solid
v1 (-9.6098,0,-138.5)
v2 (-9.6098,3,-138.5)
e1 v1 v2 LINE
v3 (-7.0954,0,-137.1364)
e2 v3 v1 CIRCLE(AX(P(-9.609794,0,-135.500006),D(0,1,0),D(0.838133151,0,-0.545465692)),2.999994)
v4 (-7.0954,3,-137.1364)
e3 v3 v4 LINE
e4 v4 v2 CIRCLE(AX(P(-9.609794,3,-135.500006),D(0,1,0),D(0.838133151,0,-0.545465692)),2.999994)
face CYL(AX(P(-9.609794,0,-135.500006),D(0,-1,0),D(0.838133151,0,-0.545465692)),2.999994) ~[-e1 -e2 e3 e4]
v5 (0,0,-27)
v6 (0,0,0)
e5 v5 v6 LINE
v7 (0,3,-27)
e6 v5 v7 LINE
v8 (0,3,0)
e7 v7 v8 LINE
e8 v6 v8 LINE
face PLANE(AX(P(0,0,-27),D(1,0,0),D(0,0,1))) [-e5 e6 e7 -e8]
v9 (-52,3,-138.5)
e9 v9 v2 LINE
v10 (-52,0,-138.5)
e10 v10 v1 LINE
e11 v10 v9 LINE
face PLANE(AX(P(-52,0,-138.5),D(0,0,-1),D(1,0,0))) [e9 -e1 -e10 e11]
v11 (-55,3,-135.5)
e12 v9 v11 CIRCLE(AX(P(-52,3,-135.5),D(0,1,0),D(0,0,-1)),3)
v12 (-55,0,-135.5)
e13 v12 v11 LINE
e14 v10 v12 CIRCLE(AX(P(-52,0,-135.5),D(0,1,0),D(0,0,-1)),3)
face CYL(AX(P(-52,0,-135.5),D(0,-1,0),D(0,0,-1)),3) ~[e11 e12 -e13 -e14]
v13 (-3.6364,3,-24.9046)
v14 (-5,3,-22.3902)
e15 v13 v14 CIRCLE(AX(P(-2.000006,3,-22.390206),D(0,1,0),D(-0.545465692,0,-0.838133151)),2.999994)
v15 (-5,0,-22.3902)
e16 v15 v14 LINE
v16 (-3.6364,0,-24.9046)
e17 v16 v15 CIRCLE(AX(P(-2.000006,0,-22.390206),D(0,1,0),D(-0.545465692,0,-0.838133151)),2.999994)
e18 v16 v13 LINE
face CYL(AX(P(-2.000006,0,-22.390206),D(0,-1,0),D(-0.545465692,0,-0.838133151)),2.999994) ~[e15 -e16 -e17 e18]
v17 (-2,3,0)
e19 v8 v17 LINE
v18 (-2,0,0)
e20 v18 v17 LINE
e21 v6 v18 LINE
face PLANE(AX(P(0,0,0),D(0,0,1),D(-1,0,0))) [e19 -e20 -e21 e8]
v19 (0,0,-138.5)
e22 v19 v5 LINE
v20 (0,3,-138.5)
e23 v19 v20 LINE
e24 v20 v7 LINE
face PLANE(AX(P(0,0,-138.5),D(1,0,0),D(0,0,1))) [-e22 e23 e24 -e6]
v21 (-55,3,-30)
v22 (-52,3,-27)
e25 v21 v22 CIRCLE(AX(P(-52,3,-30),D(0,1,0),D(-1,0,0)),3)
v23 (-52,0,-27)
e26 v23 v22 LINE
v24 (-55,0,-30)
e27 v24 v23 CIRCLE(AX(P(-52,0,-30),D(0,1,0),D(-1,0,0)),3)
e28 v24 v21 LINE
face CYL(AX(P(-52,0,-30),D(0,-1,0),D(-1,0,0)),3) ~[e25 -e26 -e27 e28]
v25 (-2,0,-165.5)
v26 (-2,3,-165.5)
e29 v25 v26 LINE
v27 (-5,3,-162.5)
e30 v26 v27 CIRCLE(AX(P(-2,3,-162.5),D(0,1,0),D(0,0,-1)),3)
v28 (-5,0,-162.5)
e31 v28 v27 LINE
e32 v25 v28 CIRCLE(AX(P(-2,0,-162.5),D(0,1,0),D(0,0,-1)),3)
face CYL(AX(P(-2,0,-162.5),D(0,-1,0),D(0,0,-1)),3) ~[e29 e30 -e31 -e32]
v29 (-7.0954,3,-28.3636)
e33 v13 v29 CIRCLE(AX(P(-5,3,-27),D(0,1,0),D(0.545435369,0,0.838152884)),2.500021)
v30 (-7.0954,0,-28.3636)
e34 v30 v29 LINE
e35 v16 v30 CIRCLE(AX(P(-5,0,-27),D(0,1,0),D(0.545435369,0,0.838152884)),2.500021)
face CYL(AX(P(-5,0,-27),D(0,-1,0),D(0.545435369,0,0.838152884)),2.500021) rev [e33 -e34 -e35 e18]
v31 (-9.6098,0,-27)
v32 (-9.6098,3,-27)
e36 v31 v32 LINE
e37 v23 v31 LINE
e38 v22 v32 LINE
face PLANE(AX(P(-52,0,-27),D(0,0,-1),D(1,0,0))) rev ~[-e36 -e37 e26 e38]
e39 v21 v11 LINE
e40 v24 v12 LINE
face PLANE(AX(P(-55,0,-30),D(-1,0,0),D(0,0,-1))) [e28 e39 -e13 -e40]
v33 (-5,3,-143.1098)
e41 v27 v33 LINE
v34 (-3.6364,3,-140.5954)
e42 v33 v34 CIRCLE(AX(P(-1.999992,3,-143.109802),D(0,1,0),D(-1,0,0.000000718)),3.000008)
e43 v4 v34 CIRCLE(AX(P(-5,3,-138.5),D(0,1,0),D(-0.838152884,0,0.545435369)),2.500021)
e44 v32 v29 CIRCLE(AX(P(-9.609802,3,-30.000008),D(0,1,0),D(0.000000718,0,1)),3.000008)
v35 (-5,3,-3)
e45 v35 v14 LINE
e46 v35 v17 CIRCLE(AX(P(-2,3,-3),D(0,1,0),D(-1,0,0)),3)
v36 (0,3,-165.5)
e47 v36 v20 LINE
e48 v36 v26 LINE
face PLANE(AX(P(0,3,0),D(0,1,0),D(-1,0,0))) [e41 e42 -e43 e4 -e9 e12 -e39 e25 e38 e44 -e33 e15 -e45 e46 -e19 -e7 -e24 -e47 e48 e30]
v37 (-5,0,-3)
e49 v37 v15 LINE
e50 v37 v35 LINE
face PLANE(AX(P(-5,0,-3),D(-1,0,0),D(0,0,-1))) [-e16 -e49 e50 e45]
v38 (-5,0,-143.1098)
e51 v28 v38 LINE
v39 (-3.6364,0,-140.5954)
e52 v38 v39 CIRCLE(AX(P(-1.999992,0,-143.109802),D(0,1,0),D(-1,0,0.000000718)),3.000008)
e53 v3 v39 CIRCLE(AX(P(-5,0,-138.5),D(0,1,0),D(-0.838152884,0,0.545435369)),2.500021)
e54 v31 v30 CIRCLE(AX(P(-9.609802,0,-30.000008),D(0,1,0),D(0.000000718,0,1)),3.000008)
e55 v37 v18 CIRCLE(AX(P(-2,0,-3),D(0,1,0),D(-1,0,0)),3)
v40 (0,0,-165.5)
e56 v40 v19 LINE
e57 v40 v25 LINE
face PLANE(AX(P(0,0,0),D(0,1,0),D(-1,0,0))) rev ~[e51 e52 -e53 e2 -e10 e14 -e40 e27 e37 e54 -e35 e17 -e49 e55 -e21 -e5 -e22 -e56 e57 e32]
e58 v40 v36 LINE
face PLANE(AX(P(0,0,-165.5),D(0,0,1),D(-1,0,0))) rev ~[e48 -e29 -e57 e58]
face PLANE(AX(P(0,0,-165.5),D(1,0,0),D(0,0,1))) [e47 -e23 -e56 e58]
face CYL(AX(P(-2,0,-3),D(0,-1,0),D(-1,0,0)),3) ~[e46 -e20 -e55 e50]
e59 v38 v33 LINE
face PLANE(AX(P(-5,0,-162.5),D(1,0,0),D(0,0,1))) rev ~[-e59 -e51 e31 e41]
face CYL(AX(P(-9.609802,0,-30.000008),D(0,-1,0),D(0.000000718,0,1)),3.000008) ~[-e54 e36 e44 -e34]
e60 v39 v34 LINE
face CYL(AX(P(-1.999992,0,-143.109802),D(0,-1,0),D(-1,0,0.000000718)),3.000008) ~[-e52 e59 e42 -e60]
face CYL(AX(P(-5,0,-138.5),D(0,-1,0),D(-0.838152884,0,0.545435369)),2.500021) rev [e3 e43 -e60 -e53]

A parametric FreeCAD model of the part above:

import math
import FreeCAD as App
import Part
import Sketcher
from FreeCAD import Vector
Q = App.Units.Quantity

doc = App.newDocument("Part")
params = doc.addObject("Spreadsheet::Sheet", "Params")
for row, (alias, value) in enumerate([
    ("sketch1_radius", "3 mm"),
    ("sketch1_radius2", "2.5 mm"),
    ("sketch1_width", "2 mm"),
    ("sketch1_height", "105.5 mm"),
    ("sketch1_height2", "165.5 mm"),
    ("pad1_length", "3 mm"),
], start=1):
    params.set(f"A{row}", alias)
    params.set(f"B{row}", "=" + value)
    params.setAlias(f"B{row}", alias)

body = doc.addObject("PartDesign::Body", "Body")

sketch1 = doc.addObject("Sketcher::SketchObject", "Sketch")
body.addObject(sketch1)
sketch1.AttachmentSupport = (doc.XZ_Plane, [""])
sketch1.MapMode = "FlatFace"
sketch1.addGeometry([
    Part.LineSegment(Vector(-55, -135.5, 0), Vector(-55, -30, 0)),
    Part.ArcOfCircle(Part.Circle(Vector(-52, -30, 0), Vector(0, 0, 1), 3), math.radians(90), math.radians(180)),
    Part.LineSegment(Vector(-52, -27, 0), Vector(-9.6098, -27, 0)),
    Part.ArcOfCircle(Part.Circle(Vector(-9.6098, -30, 0), Vector(0, 0, 1), 3), math.radians(33.056534), math.radians(90)),
    Part.ArcOfCircle(Part.Circle(Vector(-5, -27, 0), Vector(0, 0, 1), 2.500021), math.radians(-146.94558), math.radians(56.94558)),
    Part.ArcOfCircle(Part.Circle(Vector(-2, -22.3902, 0), Vector(0, 0, 1), 3.000002), math.radians(180), math.radians(236.943466)),
    Part.LineSegment(Vector(-5, -22.3902, 0), Vector(-5, -3, 0)),
    Part.ArcOfCircle(Part.Circle(Vector(-2, -3, 0), Vector(0, 0, 1), 3), math.radians(90), math.radians(180)),
    Part.LineSegment(Vector(-2, 0, 0), Vector(0, 0, 0)),
    Part.LineSegment(Vector(0, 0, 0), Vector(0, -165.5, 0)),
    Part.LineSegment(Vector(0, -165.5, 0), Vector(-2, -165.5, 0)),
    Part.ArcOfCircle(Part.Circle(Vector(-2, -162.5, 0), Vector(0, 0, 1), 3), math.radians(180), math.radians(270)),
    Part.LineSegment(Vector(-5, -162.5, 0), Vector(-5, -143.1098, 0)),
    Part.ArcOfCircle(Part.Circle(Vector(-2, -143.1098, 0), Vector(0, 0, 1), 3), math.radians(123.056534), math.radians(180)),
    Part.ArcOfCircle(Part.Circle(Vector(-5, -138.5, 0), Vector(0, 0, 1), 2.500021), math.radians(-56.94558), math.radians(146.94558)),
    Part.ArcOfCircle(Part.Circle(Vector(-9.6098, -135.5, 0), Vector(0, 0, 1), 3.000002), math.radians(-90), math.radians(-33.056534)),
    Part.LineSegment(Vector(-9.6098, -138.5, 0), Vector(-52, -138.5, 0)),
    Part.ArcOfCircle(Part.Circle(Vector(-52, -135.5, 0), Vector(0, 0, 1), 3), math.radians(180), math.radians(270)),
], False)
sketch1.addConstraint([
    Sketcher.Constraint("Tangent", 0, 2, 1, 2),
    Sketcher.Constraint("Tangent", 1, 1, 2, 1),
    Sketcher.Constraint("Tangent", 2, 2, 3, 2),
    Sketcher.Constraint("Tangent", 3, 1, 4, 1),
    Sketcher.Constraint("Tangent", 4, 2, 5, 2),
    Sketcher.Constraint("Tangent", 5, 1, 6, 1),
    Sketcher.Constraint("Tangent", 6, 2, 7, 2),
    Sketcher.Constraint("Tangent", 7, 1, 8, 1),
    Sketcher.Constraint("Coincident", 8, 2, 9, 1),
    Sketcher.Constraint("Coincident", 9, 2, 10, 1),
    Sketcher.Constraint("Tangent", 10, 2, 11, 2),
    Sketcher.Constraint("Tangent", 11, 1, 12, 1),
    Sketcher.Constraint("Tangent", 12, 2, 13, 2),
    Sketcher.Constraint("Tangent", 13, 1, 14, 1),
    Sketcher.Constraint("Tangent", 14, 2, 15, 2),
    Sketcher.Constraint("Tangent", 15, 1, 16, 1),
    Sketcher.Constraint("Tangent", 16, 2, 17, 2),
    Sketcher.Constraint("Tangent", 17, 1, 0, 1),
    Sketcher.Constraint("Vertical", 0),
    Sketcher.Constraint("Horizontal", 2),
    Sketcher.Constraint("Vertical", 6),
    Sketcher.Constraint("Horizontal", 8),
    Sketcher.Constraint("Vertical", 9),
    Sketcher.Constraint("Horizontal", 10),
    Sketcher.Constraint("Vertical", 12),
    Sketcher.Constraint("Horizontal", 16),
    Sketcher.Constraint("Coincident", 8, 2, -1, 1),
    Sketcher.Constraint("Equal", 1, 3),
    Sketcher.Constraint("Equal", 3, 5),
    Sketcher.Constraint("Equal", 5, 7),
    Sketcher.Constraint("Equal", 7, 11),
    Sketcher.Constraint("Equal", 11, 13),
    Sketcher.Constraint("Equal", 4, 14),
    Sketcher.Constraint("Equal", 13, 15),
    Sketcher.Constraint("Equal", 15, 17),
    Sketcher.Constraint("Horizontal", 4, 3, 1, 1),
    Sketcher.Constraint("Horizontal", 14, 3, 15, 1),
    Sketcher.Constraint("Vertical", 7, 3, 11, 3),
    Sketcher.Constraint("Vertical", 4, 3, 14, 3),
    Sketcher.Constraint("Vertical", 14, 3, 5, 1),
    Sketcher.Constraint("Equal", 6, 12),
    Sketcher.Constraint("Radius", 1, Q("3 mm")),
    Sketcher.Constraint("Radius", 4, Q("2.5 mm")),
    Sketcher.Constraint("DistanceX", 8, 1, 8, 2, Q("2 mm")),
    Sketcher.Constraint("DistanceY", 0, 1, 0, 2, Q("105.5 mm")),
    Sketcher.Constraint("DistanceY", 9, 2, 9, 1, Q("165.5 mm")),
    Sketcher.Constraint("DistanceX", 1, 3, -1, 1, Q("52 mm")),
])
sketch1.setExpression("Constraints[41]", "Params.sketch1_radius")
sketch1.setExpression("Constraints[42]", "Params.sketch1_radius2")
sketch1.setExpression("Constraints[43]", "Params.sketch1_width")
sketch1.setExpression("Constraints[44]", "Params.sketch1_height")
sketch1.setExpression("Constraints[45]", "Params.sketch1_height2")
pad1 = doc.addObject("PartDesign::Pad", "Pad")
body.addObject(pad1)
pad1.Profile = sketch1
pad1.setExpression("Length", "Params.pad1_length")
pad1.Reversed = True

doc.recompute()
